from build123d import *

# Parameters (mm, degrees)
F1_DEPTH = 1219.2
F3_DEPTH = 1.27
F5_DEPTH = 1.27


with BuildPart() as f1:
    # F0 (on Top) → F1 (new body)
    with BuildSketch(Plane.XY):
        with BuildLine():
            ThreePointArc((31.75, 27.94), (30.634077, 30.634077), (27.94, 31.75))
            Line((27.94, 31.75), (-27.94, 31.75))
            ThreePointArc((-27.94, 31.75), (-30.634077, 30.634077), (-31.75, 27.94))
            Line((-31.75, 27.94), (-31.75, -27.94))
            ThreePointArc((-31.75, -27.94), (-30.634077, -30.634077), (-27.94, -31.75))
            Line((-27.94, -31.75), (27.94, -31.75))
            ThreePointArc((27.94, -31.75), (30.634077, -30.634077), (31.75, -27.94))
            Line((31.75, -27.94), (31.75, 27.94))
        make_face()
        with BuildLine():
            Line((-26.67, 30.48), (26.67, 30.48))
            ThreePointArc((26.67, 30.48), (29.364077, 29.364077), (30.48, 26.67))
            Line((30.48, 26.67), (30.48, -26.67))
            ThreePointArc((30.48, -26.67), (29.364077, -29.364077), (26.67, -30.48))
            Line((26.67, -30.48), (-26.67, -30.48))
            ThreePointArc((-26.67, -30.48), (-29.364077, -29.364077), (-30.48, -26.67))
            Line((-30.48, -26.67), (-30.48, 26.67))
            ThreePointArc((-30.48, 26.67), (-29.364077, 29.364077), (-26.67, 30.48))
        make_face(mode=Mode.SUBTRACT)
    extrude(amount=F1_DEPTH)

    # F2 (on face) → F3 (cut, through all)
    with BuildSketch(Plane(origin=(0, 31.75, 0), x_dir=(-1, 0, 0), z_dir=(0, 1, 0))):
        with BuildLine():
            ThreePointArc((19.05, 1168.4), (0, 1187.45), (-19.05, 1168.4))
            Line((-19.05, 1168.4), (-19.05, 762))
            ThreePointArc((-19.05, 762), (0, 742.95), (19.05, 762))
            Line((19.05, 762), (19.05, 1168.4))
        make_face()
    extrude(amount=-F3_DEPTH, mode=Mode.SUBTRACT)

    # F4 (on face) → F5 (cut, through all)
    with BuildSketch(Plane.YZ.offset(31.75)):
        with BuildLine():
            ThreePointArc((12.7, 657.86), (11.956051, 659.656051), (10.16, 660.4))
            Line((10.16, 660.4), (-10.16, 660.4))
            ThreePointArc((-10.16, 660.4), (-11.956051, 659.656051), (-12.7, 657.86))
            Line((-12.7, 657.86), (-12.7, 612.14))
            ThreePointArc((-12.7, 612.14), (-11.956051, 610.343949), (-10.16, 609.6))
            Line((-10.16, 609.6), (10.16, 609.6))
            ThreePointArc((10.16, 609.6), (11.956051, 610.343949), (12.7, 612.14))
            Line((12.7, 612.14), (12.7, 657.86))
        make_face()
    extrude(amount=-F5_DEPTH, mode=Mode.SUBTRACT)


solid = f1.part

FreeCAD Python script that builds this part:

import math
import FreeCAD as App
import Part
import Sketcher
from FreeCAD import Vector
Q = App.Units.Quantity

doc = App.newDocument("Part")
body = doc.addObject("PartDesign::Body", "Body")

# Sketch on XY plane
sketch1 = doc.addObject("Sketcher::SketchObject", "Sketch")
body.addObject(sketch1)
sketch1.AttachmentSupport = (doc.XY_Plane, [""])
sketch1.MapMode = "FlatFace"
sketch1.addGeometry([
    Part.ArcOfCircle(Part.Circle(Vector(27.9, 27.9, 0), Vector(0, 0, 1), 3.8), math.radians(0), math.radians(90)),  # 0
    Part.LineSegment(Vector(27.9, 31.8, 0), Vector(-27.9, 31.8, 0)),  # 1
    Part.ArcOfCircle(Part.Circle(Vector(-27.9, 27.9, 0), Vector(0, 0, 1), 3.8), math.radians(90), math.radians(180)),  # 2
    Part.LineSegment(Vector(-31.8, 27.9, 0), Vector(-31.8, -27.9, 0)),  # 3
    Part.ArcOfCircle(Part.Circle(Vector(-27.9, -27.9, 0), Vector(0, 0, 1), 3.8), math.radians(180), math.radians(270)),  # 4
    Part.LineSegment(Vector(-27.9, -31.8, 0), Vector(27.9, -31.8, 0)),  # 5
    Part.ArcOfCircle(Part.Circle(Vector(27.9, -27.9, 0), Vector(0, 0, 1), 3.8), math.radians(-90), math.radians(0)),  # 6
    Part.LineSegment(Vector(31.8, -27.9, 0), Vector(31.8, 27.9, 0)),  # 7
    Part.ArcOfCircle(Part.Circle(Vector(-26.7, 26.7, 0), Vector(0, 0, 1), 3.8), math.radians(90), math.radians(180)),  # 8
    Part.LineSegment(Vector(-26.7, 30.5, 0), Vector(26.7, 30.5, 0)),  # 9
    Part.ArcOfCircle(Part.Circle(Vector(26.7, 26.7, 0), Vector(0, 0, 1), 3.8), math.radians(0), math.radians(90)),  # 10
    Part.LineSegment(Vector(30.5, 26.7, 0), Vector(30.5, -26.7, 0)),  # 11
    Part.ArcOfCircle(Part.Circle(Vector(26.7, -26.7, 0), Vector(0, 0, 1), 3.8), math.radians(-90), math.radians(0)),  # 12
    Part.LineSegment(Vector(26.7, -30.5, 0), Vector(-26.7, -30.5, 0)),  # 13
    Part.ArcOfCircle(Part.Circle(Vector(-26.7, -26.7, 0), Vector(0, 0, 1), 3.8), math.radians(180), math.radians(270)),  # 14
    Part.LineSegment(Vector(-30.5, -26.7, 0), Vector(-30.5, 26.7, 0)),  # 15
], False)
sketch1.addConstraint([
    Sketcher.Constraint("Tangent", 0, 2, 1, 1),
    Sketcher.Constraint("Tangent", 1, 2, 2, 1),
    Sketcher.Constraint("Tangent", 2, 2, 3, 1),
    Sketcher.Constraint("Tangent", 3, 2, 4, 1),
    Sketcher.Constraint("Tangent", 4, 2, 5, 1),
    Sketcher.Constraint("Tangent", 5, 2, 6, 1),
    Sketcher.Constraint("Tangent", 6, 2, 7, 1),
    Sketcher.Constraint("Tangent", 7, 2, 0, 1),
    Sketcher.Constraint("Tangent", 8, 1, 9, 1),
    Sketcher.Constraint("Tangent", 9, 2, 10, 2),
    Sketcher.Constraint("Tangent", 10, 1, 11, 1),
    Sketcher.Constraint("Tangent", 11, 2, 12, 2),
    Sketcher.Constraint("Tangent", 12, 1, 13, 1),
    Sketcher.Constraint("Tangent", 13, 2, 14, 2),
    Sketcher.Constraint("Tangent", 14, 1, 15, 1),
    Sketcher.Constraint("Tangent", 15, 2, 8, 2),
    Sketcher.Constraint("Horizontal", 1),
    Sketcher.Constraint("Vertical", 3),
    Sketcher.Constraint("Horizontal", 5),
    Sketcher.Constraint("Vertical", 7),
    Sketcher.Constraint("Horizontal", 9),
    Sketcher.Constraint("Vertical", 11),
    Sketcher.Constraint("Horizontal", 13),
    Sketcher.Constraint("Vertical", 15),
    Sketcher.Constraint("Equal", 0, 2),
    Sketcher.Constraint("Equal", 2, 4),
    Sketcher.Constraint("Equal", 4, 6),
    Sketcher.Constraint("Equal", 6, 8),
    Sketcher.Constraint("Equal", 8, 10),
    Sketcher.Constraint("Equal", 10, 12),
    Sketcher.Constraint("Equal", 12, 14),
    Sketcher.Constraint("Symmetric", 0, 3, 4, 3, -1, 1),
    Sketcher.Constraint("Symmetric", 8, 3, 12, 3, -1, 1),
    Sketcher.Constraint("Equal", 5, 3),
    Sketcher.Constraint("Equal", 13, 11),
    Sketcher.Constraint("Radius", 0, Q("0.15 in")),
    Sketcher.Constraint("DistanceX", 1, 2, 1, 1, Q("2.2 in")),
    Sketcher.Constraint("DistanceX", 9, 1, 9, 2, Q("2.1 in")),
])
pad1 = doc.addObject("PartDesign::Pad", "Pad")
body.addObject(pad1)
pad1.Profile = sketch1
pad1.Length = Q("48 in")

# Sketch on XZ plane
sketch2 = doc.addObject("Sketcher::SketchObject", "Sketch001")
body.addObject(sketch2)
sketch2.AttachmentSupport = (doc.XZ_Plane, [""])
sketch2.MapMode = "FlatFace"
sketch2.AttachmentOffset = App.Placement(Vector(0, 0, -1.25 * 25.4), App.Rotation())
sketch2.addGeometry([
    Part.ArcOfCircle(Part.Circle(Vector(0, 1168, 0), Vector(0, 0, 1), 19), math.radians(0), math.radians(180)),
    Part.LineSegment(Vector(19, 1168, 0), Vector(19, 762, 0)),
    Part.ArcOfCircle(Part.Circle(Vector(0, 762, 0), Vector(0, 0, 1), 19), math.radians(180), math.radians(360)),
    Part.LineSegment(Vector(-19, 762, 0), Vector(-19, 1168, 0)),
], False)
sketch2.addConstraint([
    Sketcher.Constraint("Tangent", 0, 1, 1, 1),
    Sketcher.Constraint("Tangent", 1, 2, 2, 2),
    Sketcher.Constraint("Tangent", 2, 1, 3, 1),
    Sketcher.Constraint("Tangent", 3, 2, 0, 2),
    Sketcher.Constraint("Vertical", 1),
    Sketcher.Constraint("Vertical", 3),
    Sketcher.Constraint("PointOnObject", 0, 3, -2),
    Sketcher.Constraint("DistanceY", 1, 2, 1, 1, Q("16 in")),
    Sketcher.Constraint("Radius", 0, Q("0.75 in")),
    Sketcher.Constraint("DistanceY", -1, 1, 0, 3, Q("46 in")),
])
pocket1 = doc.addObject("PartDesign::Pocket", "Pocket")
body.addObject(pocket1)
pocket1.Profile = sketch2
pocket1.Length = Q("0.05 in")
pocket1.Reversed = True

# Sketch on YZ plane
sketch3 = doc.addObject("Sketcher::SketchObject", "Sketch002")
body.addObject(sketch3)
sketch3.AttachmentSupport = (doc.YZ_Plane, [""])
sketch3.MapMode = "FlatFace"
sketch3.AttachmentOffset = App.Placement(Vector(0, 0, 1.25 * 25.4), App.Rotation())
sketch3.addGeometry([
    Part.ArcOfCircle(Part.Circle(Vector(10.2, 657.9, 0), Vector(0, 0, 1), 2.5), math.radians(0), math.radians(90)),  # 0
    Part.LineSegment(Vector(10.2, 660.4, 0), Vector(-10.2, 660.4, 0)),  # 1
    Part.ArcOfCircle(Part.Circle(Vector(-10.2, 657.9, 0), Vector(0, 0, 1), 2.5), math.radians(90), math.radians(180)),  # 2
    Part.LineSegment(Vector(-12.7, 657.9, 0), Vector(-12.7, 612.1, 0)),  # 3
    Part.ArcOfCircle(Part.Circle(Vector(-10.2, 612.1, 0), Vector(0, 0, 1), 2.5), math.radians(-180), math.radians(-90)),  # 4
    Part.LineSegment(Vector(-10.2, 609.6, 0), Vector(10.2, 609.6, 0)),  # 5
    Part.ArcOfCircle(Part.Circle(Vector(10.2, 612.1, 0), Vector(0, 0, 1), 2.5), math.radians(-90), math.radians(0)),  # 6
    Part.LineSegment(Vector(12.7, 612.1, 0), Vector(12.7, 657.9, 0)),  # 7
], False)
sketch3.addConstraint([
    Sketcher.Constraint("Tangent", 0, 2, 1, 1),
    Sketcher.Constraint("Tangent", 1, 2, 2, 1),
    Sketcher.Constraint("Tangent", 2, 2, 3, 1),
    Sketcher.Constraint("Tangent", 3, 2, 4, 1),
    Sketcher.Constraint("Tangent", 4, 2, 5, 1),
    Sketcher.Constraint("Tangent", 5, 2, 6, 1),
    Sketcher.Constraint("Tangent", 6, 2, 7, 1),
    Sketcher.Constraint("Tangent", 7, 2, 0, 1),
    Sketcher.Constraint("Horizontal", 1),
    Sketcher.Constraint("Vertical", 3),
    Sketcher.Constraint("Horizontal", 5),
    Sketcher.Constraint("Vertical", 7),
    Sketcher.Constraint("Equal", 0, 2),
    Sketcher.Constraint("Equal", 2, 4),
    Sketcher.Constraint("Equal", 4, 6),
    Sketcher.Constraint("Radius", 0, Q("0.1 in")),
    Sketcher.Constraint("DistanceX", 1, 2, 1, 1, Q("0.8 in")),
    Sketcher.Constraint("DistanceY", 3, 2, 3, 1, Q("1.8 in")),
    Sketcher.Constraint("DistanceY", -1, 1, 0, 2, Q("26 in")),
    Sketcher.Constraint("DistanceX", -1, 1, 0, 3, Q("0.4 in")),
])
pocket2 = doc.addObject("PartDesign::Pocket", "Pocket001")
body.addObject(pocket2)
pocket2.Profile = sketch3
pocket2.Length = Q("0.05 in")

doc.recompute()
